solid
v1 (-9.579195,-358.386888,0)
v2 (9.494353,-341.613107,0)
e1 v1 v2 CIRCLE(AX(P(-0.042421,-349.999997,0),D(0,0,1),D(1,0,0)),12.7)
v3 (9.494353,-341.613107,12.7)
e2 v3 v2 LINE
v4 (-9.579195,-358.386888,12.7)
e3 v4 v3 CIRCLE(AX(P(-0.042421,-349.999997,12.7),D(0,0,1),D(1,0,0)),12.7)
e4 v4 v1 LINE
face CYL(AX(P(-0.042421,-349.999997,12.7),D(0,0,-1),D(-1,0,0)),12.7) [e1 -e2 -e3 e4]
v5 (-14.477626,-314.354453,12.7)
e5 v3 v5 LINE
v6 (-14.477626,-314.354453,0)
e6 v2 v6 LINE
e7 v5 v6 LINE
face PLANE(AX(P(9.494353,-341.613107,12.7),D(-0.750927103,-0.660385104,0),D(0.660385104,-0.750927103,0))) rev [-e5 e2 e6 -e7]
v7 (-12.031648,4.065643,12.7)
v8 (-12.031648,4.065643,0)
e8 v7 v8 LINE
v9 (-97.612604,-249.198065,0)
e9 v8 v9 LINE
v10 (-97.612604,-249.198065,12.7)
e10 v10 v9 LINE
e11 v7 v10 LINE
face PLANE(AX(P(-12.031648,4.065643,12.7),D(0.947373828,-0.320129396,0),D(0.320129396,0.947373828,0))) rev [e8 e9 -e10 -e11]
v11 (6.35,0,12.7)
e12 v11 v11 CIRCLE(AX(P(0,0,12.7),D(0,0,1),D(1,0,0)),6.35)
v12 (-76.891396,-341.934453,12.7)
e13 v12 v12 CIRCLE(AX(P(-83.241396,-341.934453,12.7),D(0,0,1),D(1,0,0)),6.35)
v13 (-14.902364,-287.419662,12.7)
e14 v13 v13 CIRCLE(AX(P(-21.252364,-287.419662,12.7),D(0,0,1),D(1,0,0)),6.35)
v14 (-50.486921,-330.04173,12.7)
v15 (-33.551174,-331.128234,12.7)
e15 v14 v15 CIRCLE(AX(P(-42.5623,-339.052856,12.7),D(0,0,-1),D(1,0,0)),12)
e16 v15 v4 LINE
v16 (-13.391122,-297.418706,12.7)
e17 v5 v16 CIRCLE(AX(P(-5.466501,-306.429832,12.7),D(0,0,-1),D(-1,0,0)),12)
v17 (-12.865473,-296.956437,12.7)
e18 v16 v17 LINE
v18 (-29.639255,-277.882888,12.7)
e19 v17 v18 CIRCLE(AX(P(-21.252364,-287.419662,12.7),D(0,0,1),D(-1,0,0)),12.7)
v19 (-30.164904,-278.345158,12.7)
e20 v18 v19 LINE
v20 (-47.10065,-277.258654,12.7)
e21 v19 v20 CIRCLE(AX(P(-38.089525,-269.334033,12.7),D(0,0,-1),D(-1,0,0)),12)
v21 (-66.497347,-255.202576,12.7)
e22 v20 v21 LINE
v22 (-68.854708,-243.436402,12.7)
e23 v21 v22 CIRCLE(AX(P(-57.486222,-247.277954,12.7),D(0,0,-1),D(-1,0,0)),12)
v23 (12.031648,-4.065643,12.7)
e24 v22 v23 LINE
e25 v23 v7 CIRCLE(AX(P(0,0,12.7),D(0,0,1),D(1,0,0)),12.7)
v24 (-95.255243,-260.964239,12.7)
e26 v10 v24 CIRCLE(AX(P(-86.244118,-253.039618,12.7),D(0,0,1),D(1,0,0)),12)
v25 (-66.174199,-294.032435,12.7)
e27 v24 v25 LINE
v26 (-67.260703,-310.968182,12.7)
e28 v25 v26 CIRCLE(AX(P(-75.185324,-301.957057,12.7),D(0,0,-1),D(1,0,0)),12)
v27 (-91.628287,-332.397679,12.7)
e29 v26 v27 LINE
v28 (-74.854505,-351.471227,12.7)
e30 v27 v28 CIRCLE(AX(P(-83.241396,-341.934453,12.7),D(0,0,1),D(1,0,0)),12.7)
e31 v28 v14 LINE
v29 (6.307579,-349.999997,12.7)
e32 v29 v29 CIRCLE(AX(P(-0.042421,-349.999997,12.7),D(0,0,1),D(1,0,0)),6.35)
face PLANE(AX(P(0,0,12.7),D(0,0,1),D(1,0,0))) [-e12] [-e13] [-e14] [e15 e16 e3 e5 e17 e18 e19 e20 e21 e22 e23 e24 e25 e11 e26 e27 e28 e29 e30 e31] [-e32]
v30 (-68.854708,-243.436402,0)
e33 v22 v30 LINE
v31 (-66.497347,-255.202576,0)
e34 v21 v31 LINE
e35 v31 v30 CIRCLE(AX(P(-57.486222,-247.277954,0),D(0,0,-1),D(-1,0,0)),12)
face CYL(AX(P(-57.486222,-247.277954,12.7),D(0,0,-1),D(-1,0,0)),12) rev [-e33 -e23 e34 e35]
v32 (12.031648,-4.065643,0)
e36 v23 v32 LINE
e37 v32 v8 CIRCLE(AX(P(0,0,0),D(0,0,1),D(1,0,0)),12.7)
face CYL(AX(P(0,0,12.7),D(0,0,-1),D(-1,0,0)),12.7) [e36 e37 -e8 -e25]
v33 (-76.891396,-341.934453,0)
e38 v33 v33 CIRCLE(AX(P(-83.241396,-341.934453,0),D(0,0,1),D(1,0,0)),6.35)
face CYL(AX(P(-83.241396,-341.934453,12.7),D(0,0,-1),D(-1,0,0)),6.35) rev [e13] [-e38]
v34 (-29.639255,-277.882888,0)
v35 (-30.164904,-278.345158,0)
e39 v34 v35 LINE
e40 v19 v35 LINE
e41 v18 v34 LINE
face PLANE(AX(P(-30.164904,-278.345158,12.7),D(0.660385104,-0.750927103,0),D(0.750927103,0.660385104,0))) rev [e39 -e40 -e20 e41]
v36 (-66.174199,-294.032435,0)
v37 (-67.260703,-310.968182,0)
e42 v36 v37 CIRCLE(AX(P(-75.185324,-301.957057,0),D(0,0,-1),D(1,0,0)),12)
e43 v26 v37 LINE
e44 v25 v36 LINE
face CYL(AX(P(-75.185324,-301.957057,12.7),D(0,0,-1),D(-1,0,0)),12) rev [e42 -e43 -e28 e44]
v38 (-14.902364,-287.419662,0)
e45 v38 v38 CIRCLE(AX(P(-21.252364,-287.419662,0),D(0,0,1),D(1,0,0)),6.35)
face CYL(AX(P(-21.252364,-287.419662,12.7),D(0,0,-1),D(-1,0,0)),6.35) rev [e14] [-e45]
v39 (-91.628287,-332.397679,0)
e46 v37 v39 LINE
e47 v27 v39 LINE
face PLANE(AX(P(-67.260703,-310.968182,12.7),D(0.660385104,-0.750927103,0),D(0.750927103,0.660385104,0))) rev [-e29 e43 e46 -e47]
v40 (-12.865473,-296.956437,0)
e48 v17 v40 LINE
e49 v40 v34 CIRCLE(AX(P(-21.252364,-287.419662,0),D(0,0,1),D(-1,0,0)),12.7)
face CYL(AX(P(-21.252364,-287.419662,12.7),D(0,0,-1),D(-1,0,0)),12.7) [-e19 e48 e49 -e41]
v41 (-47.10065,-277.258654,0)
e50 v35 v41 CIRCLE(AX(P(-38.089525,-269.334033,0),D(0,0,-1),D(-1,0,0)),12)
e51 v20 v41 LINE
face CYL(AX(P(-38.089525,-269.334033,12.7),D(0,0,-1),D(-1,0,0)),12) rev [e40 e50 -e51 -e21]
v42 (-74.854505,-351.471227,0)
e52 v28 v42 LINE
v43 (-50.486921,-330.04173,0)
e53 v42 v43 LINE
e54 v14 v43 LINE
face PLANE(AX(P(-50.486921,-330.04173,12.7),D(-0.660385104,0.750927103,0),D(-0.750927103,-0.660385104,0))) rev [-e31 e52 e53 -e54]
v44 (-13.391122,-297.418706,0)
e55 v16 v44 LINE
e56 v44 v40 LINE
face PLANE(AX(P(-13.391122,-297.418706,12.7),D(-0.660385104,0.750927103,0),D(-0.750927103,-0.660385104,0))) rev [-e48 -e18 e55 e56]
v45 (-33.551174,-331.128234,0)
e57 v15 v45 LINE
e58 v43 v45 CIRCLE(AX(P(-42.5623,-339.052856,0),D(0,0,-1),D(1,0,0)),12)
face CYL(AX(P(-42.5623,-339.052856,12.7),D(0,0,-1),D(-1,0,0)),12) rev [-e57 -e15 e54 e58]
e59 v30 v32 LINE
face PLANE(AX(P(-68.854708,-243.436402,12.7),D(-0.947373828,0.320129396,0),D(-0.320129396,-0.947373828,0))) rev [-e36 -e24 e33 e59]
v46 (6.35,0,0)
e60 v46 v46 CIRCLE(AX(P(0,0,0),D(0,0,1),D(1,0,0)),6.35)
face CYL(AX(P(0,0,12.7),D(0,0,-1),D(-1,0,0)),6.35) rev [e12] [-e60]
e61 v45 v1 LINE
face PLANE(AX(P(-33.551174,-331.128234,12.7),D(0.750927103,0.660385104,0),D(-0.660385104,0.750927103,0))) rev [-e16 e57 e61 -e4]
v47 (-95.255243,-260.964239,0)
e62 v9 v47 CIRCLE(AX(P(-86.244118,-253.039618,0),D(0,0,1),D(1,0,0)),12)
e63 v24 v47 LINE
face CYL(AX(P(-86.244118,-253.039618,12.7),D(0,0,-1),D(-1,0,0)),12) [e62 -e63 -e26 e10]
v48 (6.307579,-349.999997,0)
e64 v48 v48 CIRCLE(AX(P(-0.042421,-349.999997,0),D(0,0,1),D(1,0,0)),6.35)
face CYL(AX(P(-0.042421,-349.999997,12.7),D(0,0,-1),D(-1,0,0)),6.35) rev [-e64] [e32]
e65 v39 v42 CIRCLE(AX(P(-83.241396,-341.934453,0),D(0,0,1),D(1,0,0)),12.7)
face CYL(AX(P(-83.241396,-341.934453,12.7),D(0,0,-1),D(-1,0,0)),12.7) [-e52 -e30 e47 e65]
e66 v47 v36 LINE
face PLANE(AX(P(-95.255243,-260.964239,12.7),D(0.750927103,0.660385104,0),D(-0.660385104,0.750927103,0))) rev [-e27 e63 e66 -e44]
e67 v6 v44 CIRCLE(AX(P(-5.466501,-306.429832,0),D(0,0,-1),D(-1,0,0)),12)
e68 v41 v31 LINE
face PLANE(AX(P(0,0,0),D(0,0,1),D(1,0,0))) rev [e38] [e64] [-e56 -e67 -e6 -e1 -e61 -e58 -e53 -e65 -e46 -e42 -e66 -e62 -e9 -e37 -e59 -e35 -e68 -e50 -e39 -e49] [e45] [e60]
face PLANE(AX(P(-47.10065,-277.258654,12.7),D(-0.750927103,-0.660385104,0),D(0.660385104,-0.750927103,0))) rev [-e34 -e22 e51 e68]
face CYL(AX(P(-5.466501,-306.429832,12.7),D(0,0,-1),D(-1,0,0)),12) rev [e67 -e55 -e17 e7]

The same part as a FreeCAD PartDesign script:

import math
import FreeCAD as App
import Part
import Sketcher
from FreeCAD import Vector
Q = App.Units.Quantity

doc = App.newDocument("Part")
params = doc.addObject("Spreadsheet::Sheet", "Params")
for row, (alias, value) in enumerate([
    ("sketch1_radius", "12 mm"),
    ("sketch1_diameter", "12.7 mm"),
    ("sketch1_radius2", "12.7 mm"),
    ("sketch1_length", "36.3 mm"),
    ("sketch1_length2", "0.7 mm"),
    ("pad1_length", "12.7 mm"),
], start=1):
    params.set(f"A{row}", alias)
    params.set(f"B{row}", "=" + value)
    params.setAlias(f"B{row}", alias)

body = doc.addObject("PartDesign::Body", "Body")

# Sketch on XY plane
sketch1 = doc.addObject("Sketcher::SketchObject", "Sketch")
body.addObject(sketch1)
sketch1.AttachmentSupport = (doc.XY_Plane, [""])
sketch1.MapMode = "FlatFace"
sketch1.addGeometry([
    Part.LineSegment(Vector(-12, 4.1, 0), Vector(-97.6, -249.2, 0)),  # 0
    Part.ArcOfCircle(Part.Circle(Vector(-86.2, -253, 0), Vector(0, 0, 1), 12), math.radians(161), math.radians(221)),  # 1
    Part.LineSegment(Vector(-95.3, -261, 0), Vector(-66.2, -294, 0)),  # 2
    Part.ArcOfCircle(Part.Circle(Vector(-75.2, -302, 0), Vector(0, 0, 1), 12), math.radians(-49), math.radians(41)),  # 3
    Part.LineSegment(Vector(-67.3, -311, 0), Vector(-91.6, -332.4, 0)),  # 4
    Part.ArcOfCircle(Part.Circle(Vector(-83.2, -341.9, 0), Vector(0, 0, 1), 12.7), math.radians(131), math.radians(311)),  # 5
    Part.LineSegment(Vector(-74.9, -351.5, 0), Vector(-50.5, -330, 0)),  # 6
    Part.ArcOfCircle(Part.Circle(Vector(-42.6, -339.1, 0), Vector(0, 0, 1), 12), math.radians(41), math.radians(131)),  # 7
    Part.LineSegment(Vector(-33.6, -331.1, 0), Vector(-9.6, -358.4, 0)),  # 8
    Part.ArcOfCircle(Part.Circle(Vector(0, -350, 0), Vector(0, 0, 1), 12.7), math.radians(-139), math.radians(41)),  # 9
    Part.LineSegment(Vector(9.5, -341.6, 0), Vector(-14.5, -314.4, 0)),  # 10
    Part.ArcOfCircle(Part.Circle(Vector(-5.5, -306.4, 0), Vector(0, 0, 1), 12), math.radians(131), math.radians(221)),  # 11
    Part.LineSegment(Vector(-13.4, -297.4, 0), Vector(-12.9, -297, 0)),  # 12
    Part.ArcOfCircle(Part.Circle(Vector(-21.3, -287.4, 0), Vector(0, 0, 1), 12.7), math.radians(-49), math.radians(131)),  # 13
    Part.LineSegment(Vector(-29.6, -277.9, 0), Vector(-30.2, -278.3, 0)),  # 14
    Part.ArcOfCircle(Part.Circle(Vector(-38.1, -269.3, 0), Vector(0, 0, 1), 12), math.radians(-139), math.radians(-49)),  # 15
    Part.LineSegment(Vector(-47.1, -277.3, 0), Vector(-66.5, -255.2, 0)),  # 16
    Part.ArcOfCircle(Part.Circle(Vector(-57.5, -247.3, 0), Vector(0, 0, 1), 12), math.radians(161), math.radians(221)),  # 17
    Part.LineSegment(Vector(-68.9, -243.4, 0), Vector(12, -4.1, 0)),  # 18
    Part.ArcOfCircle(Part.Circle(Vector(0, 0, 0), Vector(0, 0, 1), 12.7), math.radians(-19), math.radians(161)),  # 19
    Part.Circle(Vector(-83.2, -341.9, 0), Vector(0, 0, 1), 6.3),  # 20
    Part.Circle(Vector(-21.3, -287.4, 0), Vector(0, 0, 1), 6.3),  # 21
    Part.Circle(Vector(0, -350, 0), Vector(0, 0, 1), 6.3),  # 22
    Part.Circle(Vector(0, 0, 0), Vector(0, 0, 1), 6.3),  # 23
], False)
sketch1.addConstraint([
    Sketcher.Constraint("Tangent", 0, 2, 1, 1),
    Sketcher.Constraint("Tangent", 1, 2, 2, 1),
    Sketcher.Constraint("Tangent", 2, 2, 3, 2),
    Sketcher.Constraint("Tangent", 3, 1, 4, 1),
    Sketcher.Constraint("Tangent", 4, 2, 5, 1),
    Sketcher.Constraint("Tangent", 5, 2, 6, 1),
    Sketcher.Constraint("Tangent", 6, 2, 7, 2),
    Sketcher.Constraint("Tangent", 7, 1, 8, 1),
    Sketcher.Constraint("Tangent", 8, 2, 9, 1),
    Sketcher.Constraint("Tangent", 9, 2, 10, 1),
    Sketcher.Constraint("Tangent", 10, 2, 11, 2),
    Sketcher.Constraint("Tangent", 11, 1, 12, 1),
    Sketcher.Constraint("Tangent", 12, 2, 13, 1),
    Sketcher.Constraint("Tangent", 13, 2, 14, 1),
    Sketcher.Constraint("Tangent", 14, 2, 15, 2),
    Sketcher.Constraint("Tangent", 15, 1, 16, 1),
    Sketcher.Constraint("Tangent", 16, 2, 17, 2),
    Sketcher.Constraint("Tangent", 17, 1, 18, 1),
    Sketcher.Constraint("Tangent", 18, 2, 19, 1),
    Sketcher.Constraint("Tangent", 19, 2, 0, 1),
    Sketcher.Constraint("Coincident", 19, 3, -1, 1),
    Sketcher.Constraint("Coincident", 23, 3, -1, 1),
    Sketcher.Constraint("Coincident", 20, 3, 5, 3),
    Sketcher.Constraint("Coincident", 21, 3, 13, 3),
    Sketcher.Constraint("Coincident", 22, 3, 9, 3),
    Sketcher.Constraint("Equal", 1, 3),
    Sketcher.Constraint("Equal", 3, 7),
    Sketcher.Constraint("Equal", 5, 9),
    Sketcher.Constraint("Equal", 7, 11),
    Sketcher.Constraint("Equal", 9, 13),
    Sketcher.Constraint("Equal", 11, 15),
    Sketcher.Constraint("Equal", 15, 17),
    Sketcher.Constraint("Equal", 13, 19),
    Sketcher.Constraint("Equal", 20, 21),
    Sketcher.Constraint("Equal", 21, 22),
    Sketcher.Constraint("Equal", 22, 23),
    Sketcher.Constraint("Perpendicular", 2, 4),
    Sketcher.Constraint("Parallel", 4, 6),
    Sketcher.Constraint("Perpendicular", 6, 8),
    Sketcher.Constraint("Parallel", 8, 10),
    Sketcher.Constraint("Perpendicular", 10, 12),
    Sketcher.Constraint("Parallel", 12, 14),
    Sketcher.Constraint("Perpendicular", 14, 16),
    Sketcher.Constraint("Parallel", 0, 18),
    Sketcher.Constraint("Equal", 4, 6),
    Sketcher.Constraint("Equal", 8, 10),
    Sketcher.Constraint("Equal", 12, 14),
    Sketcher.Constraint("Radius", 1, Q("12 mm")),
    Sketcher.Constraint("Diameter", 20, Q("12.7 mm")),
    Sketcher.Constraint("Radius", 5, Q("12.7 mm")),
    Sketcher.Constraint("Distance", 8, Q("36.3 mm")),
    Sketcher.Constraint("Distance", 12, Q("0.7 mm")),
    Sketcher.Constraint("Distance", 4, Q("32.45 mm")),
    Sketcher.Constraint("DistanceX", 7, 3, -1, 1, Q("42.5623 mm")),
    Sketcher.Constraint("DistanceX", 11, 3, -1, 1, Q("5.466501 mm")),
    Sketcher.Constraint("DistanceY", 17, 1, -1, 1, Q("243.436402 mm")),
    Sketcher.Constraint("DistanceX", 3, 3, 17, 3, Q("17.699102 mm")),
])
sketch1.setExpression("Constraints[47]", "Params.sketch1_radius")
sketch1.setExpression("Constraints[48]", "Params.sketch1_diameter")
sketch1.setExpression("Constraints[49]", "Params.sketch1_radius2")
sketch1.setExpression("Constraints[50]", "Params.sketch1_length")
sketch1.setExpression("Constraints[51]", "Params.sketch1_length2")
pad1 = doc.addObject("PartDesign::Pad", "Pad")
body.addObject(pad1)
pad1.Profile = sketch1
pad1.setExpression("Length", "Params.pad1_length")

doc.recompute()
